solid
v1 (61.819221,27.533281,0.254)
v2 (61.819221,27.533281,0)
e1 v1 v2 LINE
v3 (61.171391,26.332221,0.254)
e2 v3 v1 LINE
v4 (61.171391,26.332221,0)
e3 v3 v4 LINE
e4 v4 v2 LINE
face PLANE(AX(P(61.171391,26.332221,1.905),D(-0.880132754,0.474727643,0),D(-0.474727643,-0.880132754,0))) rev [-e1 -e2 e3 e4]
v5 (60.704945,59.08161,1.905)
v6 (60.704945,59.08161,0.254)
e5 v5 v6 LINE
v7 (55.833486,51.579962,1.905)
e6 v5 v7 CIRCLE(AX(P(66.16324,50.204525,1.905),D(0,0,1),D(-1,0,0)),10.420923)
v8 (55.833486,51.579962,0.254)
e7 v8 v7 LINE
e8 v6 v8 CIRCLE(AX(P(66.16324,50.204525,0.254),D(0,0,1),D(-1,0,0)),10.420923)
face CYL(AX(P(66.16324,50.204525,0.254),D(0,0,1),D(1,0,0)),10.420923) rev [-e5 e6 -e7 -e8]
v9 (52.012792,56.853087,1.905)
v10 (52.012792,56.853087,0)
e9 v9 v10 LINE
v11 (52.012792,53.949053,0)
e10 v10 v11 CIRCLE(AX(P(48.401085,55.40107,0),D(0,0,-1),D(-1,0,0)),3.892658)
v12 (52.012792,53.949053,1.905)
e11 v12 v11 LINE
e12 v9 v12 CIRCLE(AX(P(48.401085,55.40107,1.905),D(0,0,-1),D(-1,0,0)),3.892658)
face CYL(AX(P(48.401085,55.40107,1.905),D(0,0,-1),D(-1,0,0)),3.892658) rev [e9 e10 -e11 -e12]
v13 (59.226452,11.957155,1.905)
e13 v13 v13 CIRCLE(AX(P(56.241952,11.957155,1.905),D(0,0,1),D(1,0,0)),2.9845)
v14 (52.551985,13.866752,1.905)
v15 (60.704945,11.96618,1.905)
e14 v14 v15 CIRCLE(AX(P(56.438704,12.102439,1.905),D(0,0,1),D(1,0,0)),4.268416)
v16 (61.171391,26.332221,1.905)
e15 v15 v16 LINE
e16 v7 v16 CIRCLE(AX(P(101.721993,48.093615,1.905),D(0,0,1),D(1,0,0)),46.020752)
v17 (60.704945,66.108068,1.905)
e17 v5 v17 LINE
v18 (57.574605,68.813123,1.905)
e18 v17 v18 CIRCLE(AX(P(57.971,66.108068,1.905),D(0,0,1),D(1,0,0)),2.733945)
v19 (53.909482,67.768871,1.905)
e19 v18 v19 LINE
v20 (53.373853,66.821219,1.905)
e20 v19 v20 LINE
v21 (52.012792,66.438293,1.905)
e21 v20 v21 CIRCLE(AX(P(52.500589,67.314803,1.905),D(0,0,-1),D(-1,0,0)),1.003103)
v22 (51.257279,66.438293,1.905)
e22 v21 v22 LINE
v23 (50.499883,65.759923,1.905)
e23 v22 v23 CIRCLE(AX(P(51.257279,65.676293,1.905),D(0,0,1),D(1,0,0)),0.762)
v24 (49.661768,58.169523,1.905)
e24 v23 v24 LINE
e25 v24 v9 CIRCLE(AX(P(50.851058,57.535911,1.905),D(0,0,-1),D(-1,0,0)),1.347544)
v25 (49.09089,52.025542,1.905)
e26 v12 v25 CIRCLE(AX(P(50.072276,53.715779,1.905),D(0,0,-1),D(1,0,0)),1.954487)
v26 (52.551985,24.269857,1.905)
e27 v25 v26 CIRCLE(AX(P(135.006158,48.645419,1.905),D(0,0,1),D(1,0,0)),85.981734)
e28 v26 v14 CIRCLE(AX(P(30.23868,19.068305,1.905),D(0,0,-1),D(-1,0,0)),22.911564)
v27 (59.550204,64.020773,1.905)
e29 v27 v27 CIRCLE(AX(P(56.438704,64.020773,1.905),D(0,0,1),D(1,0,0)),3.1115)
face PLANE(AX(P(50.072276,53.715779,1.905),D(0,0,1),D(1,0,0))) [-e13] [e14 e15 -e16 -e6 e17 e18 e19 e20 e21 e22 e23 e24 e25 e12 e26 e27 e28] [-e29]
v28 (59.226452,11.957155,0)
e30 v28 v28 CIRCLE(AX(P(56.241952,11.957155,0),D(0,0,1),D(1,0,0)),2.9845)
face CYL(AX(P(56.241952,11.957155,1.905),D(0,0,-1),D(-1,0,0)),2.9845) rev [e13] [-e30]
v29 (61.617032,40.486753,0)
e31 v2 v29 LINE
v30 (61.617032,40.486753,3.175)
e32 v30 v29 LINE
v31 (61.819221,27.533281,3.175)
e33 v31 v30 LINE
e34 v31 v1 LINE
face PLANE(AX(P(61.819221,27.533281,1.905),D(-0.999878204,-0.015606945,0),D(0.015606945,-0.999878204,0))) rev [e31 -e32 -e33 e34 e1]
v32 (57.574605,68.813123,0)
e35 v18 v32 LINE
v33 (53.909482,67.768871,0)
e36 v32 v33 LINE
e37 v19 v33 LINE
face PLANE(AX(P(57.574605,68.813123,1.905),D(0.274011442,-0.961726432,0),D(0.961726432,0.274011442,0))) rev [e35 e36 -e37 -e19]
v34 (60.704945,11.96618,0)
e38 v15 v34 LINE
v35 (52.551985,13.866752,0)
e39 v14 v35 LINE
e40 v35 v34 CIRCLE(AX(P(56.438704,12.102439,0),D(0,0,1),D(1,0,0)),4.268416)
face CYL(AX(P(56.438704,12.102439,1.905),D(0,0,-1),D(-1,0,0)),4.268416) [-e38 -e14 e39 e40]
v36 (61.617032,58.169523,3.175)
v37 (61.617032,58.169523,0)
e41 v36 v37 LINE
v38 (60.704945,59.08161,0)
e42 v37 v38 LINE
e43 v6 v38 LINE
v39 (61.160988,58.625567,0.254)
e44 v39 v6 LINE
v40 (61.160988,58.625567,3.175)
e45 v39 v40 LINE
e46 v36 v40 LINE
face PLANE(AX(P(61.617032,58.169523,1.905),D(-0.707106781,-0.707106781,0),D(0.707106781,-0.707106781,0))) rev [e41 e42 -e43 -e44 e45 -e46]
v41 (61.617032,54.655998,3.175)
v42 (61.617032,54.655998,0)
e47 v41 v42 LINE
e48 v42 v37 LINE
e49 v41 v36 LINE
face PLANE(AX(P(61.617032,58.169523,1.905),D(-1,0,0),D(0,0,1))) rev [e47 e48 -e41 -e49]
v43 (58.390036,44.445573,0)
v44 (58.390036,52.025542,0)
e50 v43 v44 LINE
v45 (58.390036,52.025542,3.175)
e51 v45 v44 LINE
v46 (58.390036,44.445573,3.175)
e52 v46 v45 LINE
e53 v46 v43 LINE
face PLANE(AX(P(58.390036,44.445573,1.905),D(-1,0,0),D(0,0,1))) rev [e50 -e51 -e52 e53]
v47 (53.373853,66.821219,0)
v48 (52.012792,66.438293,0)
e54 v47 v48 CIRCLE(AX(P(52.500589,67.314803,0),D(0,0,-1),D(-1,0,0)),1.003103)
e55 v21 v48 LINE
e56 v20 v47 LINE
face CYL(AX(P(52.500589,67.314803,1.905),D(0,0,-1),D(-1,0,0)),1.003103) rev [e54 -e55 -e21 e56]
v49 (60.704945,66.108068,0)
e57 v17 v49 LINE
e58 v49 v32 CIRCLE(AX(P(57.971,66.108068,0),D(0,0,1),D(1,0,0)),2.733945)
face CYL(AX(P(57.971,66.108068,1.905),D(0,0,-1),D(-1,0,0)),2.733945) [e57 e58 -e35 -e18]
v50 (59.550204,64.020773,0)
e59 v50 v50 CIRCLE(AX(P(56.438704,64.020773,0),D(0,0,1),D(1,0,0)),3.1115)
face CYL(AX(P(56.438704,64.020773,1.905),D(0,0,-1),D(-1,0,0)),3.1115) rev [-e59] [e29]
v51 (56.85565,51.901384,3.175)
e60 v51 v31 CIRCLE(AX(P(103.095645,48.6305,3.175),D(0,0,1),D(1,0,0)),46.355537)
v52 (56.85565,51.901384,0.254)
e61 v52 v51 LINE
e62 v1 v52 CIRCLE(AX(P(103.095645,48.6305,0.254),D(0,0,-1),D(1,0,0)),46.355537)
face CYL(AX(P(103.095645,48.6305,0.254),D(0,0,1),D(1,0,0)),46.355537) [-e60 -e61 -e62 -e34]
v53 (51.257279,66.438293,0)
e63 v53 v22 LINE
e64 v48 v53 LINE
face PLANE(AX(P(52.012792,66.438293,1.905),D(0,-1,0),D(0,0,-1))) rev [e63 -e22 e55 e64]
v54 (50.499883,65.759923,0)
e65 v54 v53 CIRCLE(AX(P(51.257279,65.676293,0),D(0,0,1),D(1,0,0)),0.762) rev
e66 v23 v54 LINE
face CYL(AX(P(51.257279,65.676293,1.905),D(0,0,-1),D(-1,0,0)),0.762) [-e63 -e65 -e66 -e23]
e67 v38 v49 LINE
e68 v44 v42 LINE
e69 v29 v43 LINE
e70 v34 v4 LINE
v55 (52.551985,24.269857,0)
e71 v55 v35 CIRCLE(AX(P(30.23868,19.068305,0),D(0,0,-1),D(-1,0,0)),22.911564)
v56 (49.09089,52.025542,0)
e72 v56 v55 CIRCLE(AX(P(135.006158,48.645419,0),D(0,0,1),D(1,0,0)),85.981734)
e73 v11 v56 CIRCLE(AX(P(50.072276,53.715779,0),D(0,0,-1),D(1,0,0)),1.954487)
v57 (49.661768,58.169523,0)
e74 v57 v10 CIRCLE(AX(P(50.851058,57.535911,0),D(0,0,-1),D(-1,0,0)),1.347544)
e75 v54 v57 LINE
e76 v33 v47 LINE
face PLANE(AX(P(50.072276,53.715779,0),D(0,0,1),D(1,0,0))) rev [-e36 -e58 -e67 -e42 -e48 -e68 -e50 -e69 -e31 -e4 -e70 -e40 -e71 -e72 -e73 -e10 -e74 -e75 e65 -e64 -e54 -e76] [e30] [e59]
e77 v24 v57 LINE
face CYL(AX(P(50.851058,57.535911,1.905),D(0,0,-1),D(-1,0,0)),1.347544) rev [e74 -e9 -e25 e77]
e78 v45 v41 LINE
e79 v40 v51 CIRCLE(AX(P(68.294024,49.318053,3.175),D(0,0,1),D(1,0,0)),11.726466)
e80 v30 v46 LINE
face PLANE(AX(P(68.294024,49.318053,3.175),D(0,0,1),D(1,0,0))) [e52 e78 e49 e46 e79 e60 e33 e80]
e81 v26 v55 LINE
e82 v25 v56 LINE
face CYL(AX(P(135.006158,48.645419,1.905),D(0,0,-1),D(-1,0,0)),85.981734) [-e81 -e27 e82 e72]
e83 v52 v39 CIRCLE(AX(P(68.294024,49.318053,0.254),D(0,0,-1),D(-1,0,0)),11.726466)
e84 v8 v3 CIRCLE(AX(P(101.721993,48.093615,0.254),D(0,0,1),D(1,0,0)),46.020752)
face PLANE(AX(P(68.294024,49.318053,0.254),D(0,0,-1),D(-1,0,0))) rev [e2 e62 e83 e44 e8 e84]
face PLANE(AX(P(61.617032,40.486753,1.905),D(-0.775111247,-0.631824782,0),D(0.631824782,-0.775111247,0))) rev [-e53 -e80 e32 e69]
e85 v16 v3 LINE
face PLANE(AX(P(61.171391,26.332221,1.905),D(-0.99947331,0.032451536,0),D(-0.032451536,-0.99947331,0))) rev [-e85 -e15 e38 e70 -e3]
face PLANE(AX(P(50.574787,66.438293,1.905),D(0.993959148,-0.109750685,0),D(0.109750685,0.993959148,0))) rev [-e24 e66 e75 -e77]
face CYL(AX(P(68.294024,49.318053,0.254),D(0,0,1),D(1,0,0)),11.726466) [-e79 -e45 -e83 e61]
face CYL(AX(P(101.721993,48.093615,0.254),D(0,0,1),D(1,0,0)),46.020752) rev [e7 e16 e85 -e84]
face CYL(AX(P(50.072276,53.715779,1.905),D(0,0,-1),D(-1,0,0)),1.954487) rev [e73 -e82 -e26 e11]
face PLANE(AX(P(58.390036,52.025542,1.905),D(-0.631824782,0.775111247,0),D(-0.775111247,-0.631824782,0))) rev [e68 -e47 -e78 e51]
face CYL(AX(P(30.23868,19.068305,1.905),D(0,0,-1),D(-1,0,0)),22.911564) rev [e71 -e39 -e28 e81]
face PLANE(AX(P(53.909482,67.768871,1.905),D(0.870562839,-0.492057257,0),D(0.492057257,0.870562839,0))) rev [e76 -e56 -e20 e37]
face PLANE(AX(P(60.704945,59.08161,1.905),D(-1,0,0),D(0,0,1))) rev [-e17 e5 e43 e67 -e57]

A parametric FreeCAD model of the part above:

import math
import FreeCAD as App
import Part
import Sketcher
Q = App.Units.Quantity


def edges_at(feature, points):
    """Names of the edges that pass closest to the given points."""
    edges = feature.Shape.Edges
    near = lambda p: min(range(len(edges)), key=lambda i: edges[i].distToShape(Part.Vertex(*p))[0])
    return sorted({f"Edge{near(p) + 1}" for p in points})

doc = App.newDocument("Part")
params = doc.addObject("Spreadsheet::Sheet", "Params")
for row, (alias, value) in enumerate([
    ("sketch1_diameter", "0.235 in"),
    ("sketch1_diameter2", "0.245 in"),
    ("pad1_length", "0.075 in"),
    ("pocket1_length", "0.065 in"),
    ("pad2_length", "0.05 in"),
    ("fillet_radius", "0.03 in"),
], start=1):
    params.set(f"A{row}", alias)
    params.set(f"B{row}", "=" + value)
    params.setAlias(f"B{row}", alias)

body = doc.addObject("PartDesign::Body", "Body")

sketch1 = doc.addObject("Sketcher::SketchObject", "Sketch")
body.addObject(sketch1)
sketch1.AttachmentSupport = (doc.XY_Plane, [""])
sketch1.MapMode = "FlatFace"
sketch1.addGeometry([
    Part.LineSegment(App.Vector(60.704945, 11.96618, 0), App.Vector(61.171391, 26.332221, 0)),
    Part.LineSegment(App.Vector(61.171391, 26.332221, 0), App.Vector(61.819221, 27.533281, 0)),
    Part.LineSegment(App.Vector(61.819221, 27.533281, 0), App.Vector(61.617032, 40.486753, 0)),
    Part.LineSegment(App.Vector(61.617032, 40.486753, 0), App.Vector(58.390036, 44.445573, 0)),
    Part.LineSegment(App.Vector(58.390036, 44.445573, 0), App.Vector(58.390036, 52.025542, 0)),
    Part.LineSegment(App.Vector(58.390036, 52.025542, 0), App.Vector(61.617032, 54.655998, 0)),
    Part.LineSegment(App.Vector(61.617032, 54.655998, 0), App.Vector(61.617032, 58.169523, 0)),
    Part.LineSegment(App.Vector(61.617032, 58.169523, 0), App.Vector(60.704945, 59.08161, 0)),
    Part.LineSegment(App.Vector(60.704945, 59.08161, 0), App.Vector(60.704945, 66.108068, 0)),
    Part.ArcOfCircle(Part.Circle(App.Vector(57.971, 66.108068, 0), App.Vector(0, 0, 1), 2.733945), math.radians(0), math.radians(98.336712)),
    Part.LineSegment(App.Vector(57.574605, 68.813123, 0), App.Vector(53.909482, 67.768871, 0)),
    Part.LineSegment(App.Vector(53.909482, 67.768871, 0), App.Vector(53.373853, 66.821219, 0)),
    Part.ArcOfCircle(Part.Circle(App.Vector(52.500589, 67.314803, 0), App.Vector(0, 0, 1), 1.003103), math.radians(-119.096889), math.radians(-29.475889)),
    Part.LineSegment(App.Vector(52.012792, 66.438293, 0), App.Vector(50.574787, 66.438293, 0)),
    Part.LineSegment(App.Vector(50.574787, 66.438293, 0), App.Vector(49.661768, 58.169523, 0)),
    Part.ArcOfCircle(Part.Circle(App.Vector(50.851058, 57.535911, 0), App.Vector(0, 0, 1), 1.347544), math.radians(-30.445409), math.radians(151.952863)),
    Part.ArcOfCircle(Part.Circle(App.Vector(48.401085, 55.40107, 0), App.Vector(0, 0, 1), 3.892658), math.radians(-21.901636), math.radians(21.901636)),
    Part.ArcOfCircle(Part.Circle(App.Vector(50.072276, 53.715779, 0), App.Vector(0, 0, 1), 1.954487), math.radians(-120.140344), math.radians(6.854784)),
    Part.ArcOfCircle(Part.Circle(App.Vector(135.006158, 48.645419, 0), App.Vector(0, 0, 1), 85.981734), math.radians(177.747001), math.radians(196.469027)),
    Part.ArcOfCircle(Part.Circle(App.Vector(30.23868, 19.068305, 0), App.Vector(0, 0, 1), 22.911564), math.radians(-13.122125), math.radians(13.122125)),
    Part.ArcOfCircle(Part.Circle(App.Vector(56.438704, 12.102439, 0), App.Vector(0, 0, 1), 4.268416), math.radians(155.585099), math.radians(358.170652)),
    Part.Circle(App.Vector(56.241952, 11.957155, 0), App.Vector(0, 0, 1), 2.9845),
    Part.Circle(App.Vector(56.438704, 64.020773, 0), App.Vector(0, 0, 1), 3.1115),
], False)
sketch1.addConstraint([
    Sketcher.Constraint("Coincident", 0, 2, 1, 1),
    Sketcher.Constraint("Coincident", 1, 2, 2, 1),
    Sketcher.Constraint("Coincident", 2, 2, 3, 1),
    Sketcher.Constraint("Coincident", 3, 2, 4, 1),
    Sketcher.Constraint("Coincident", 4, 2, 5, 1),
    Sketcher.Constraint("Coincident", 5, 2, 6, 1),
    Sketcher.Constraint("Coincident", 6, 2, 7, 1),
    Sketcher.Constraint("Coincident", 7, 2, 8, 1),
    Sketcher.Constraint("Tangent", 8, 2, 9, 1),
    Sketcher.Constraint("Coincident", 9, 2, 10, 1),
    Sketcher.Constraint("Coincident", 10, 2, 11, 1),
    Sketcher.Constraint("Tangent", 11, 2, 12, 2),
    Sketcher.Constraint("Coincident", 12, 1, 13, 1),
    Sketcher.Constraint("Coincident", 13, 2, 14, 1),
    Sketcher.Constraint("Coincident", 14, 2, 15, 2),
    Sketcher.Constraint("Coincident", 15, 1, 16, 2),
    Sketcher.Constraint("Coincident", 16, 1, 17, 2),
    Sketcher.Constraint("Coincident", 17, 1, 18, 1),
    Sketcher.Constraint("Coincident", 18, 2, 19, 2),
    Sketcher.Constraint("Coincident", 19, 1, 20, 1),
    Sketcher.Constraint("Coincident", 20, 2, 0, 1),
    Sketcher.Constraint("Vertical", 4),
    Sketcher.Constraint("Vertical", 6),
    Sketcher.Constraint("Vertical", 8),
    Sketcher.Constraint("Horizontal", 13),
    Sketcher.Constraint("Perpendicular", 3, 5),
    Sketcher.Constraint("Horizontal", 6, 2, 14, 2),
    Sketcher.Constraint("Horizontal", 4, 2, 17, 1),
    Sketcher.Constraint("Vertical", 20, 3, 22, 3),
    Sketcher.Constraint("Vertical", 2, 2, 5, 2),
    Sketcher.Constraint("Vertical", 12, 1, 15, 1),
    Sketcher.Constraint("Vertical", 15, 1, 16, 1),
    Sketcher.Constraint("Vertical", 18, 2, 19, 1),
    Sketcher.Constraint("Vertical", 8, 2, 20, 2),
    Sketcher.Constraint("Diameter", 21, Q("0.235 in")),
    Sketcher.Constraint("Diameter", 22, Q("0.245 in")),
    Sketcher.Constraint("Angle", 7, Q("135 deg")),
    Sketcher.Constraint("Radius", 9, Q("2.733945 mm")),
    Sketcher.Constraint("Radius", 12, Q("1.003103 mm")),
    Sketcher.Constraint("Radius", 15, Q("1.347544 mm")),
    Sketcher.Constraint("Radius", 16, Q("3.892658 mm")),
    Sketcher.Constraint("Radius", 17, Q("1.954487 mm")),
    Sketcher.Constraint("Radius", 18, Q("85.981734 mm")),
    Sketcher.Constraint("Radius", 19, Q("22.911564 mm")),
    Sketcher.Constraint("Radius", 20, Q("4.268416 mm")),
    Sketcher.Constraint("DistanceY", 4, 1, 4, 2, Q("7.579969 mm")),
    Sketcher.Constraint("DistanceX", -1, 1, 9, 3, Q("57.971 mm")),
    Sketcher.Constraint("DistanceX", 15, 3, 18, 3, Q("84.1551 mm")),
    Sketcher.Constraint("DistanceY", 19, 3, 12, 3, Q("48.246499 mm")),
    Sketcher.Constraint("DistanceX", 22, 3, 9, 2, Q("1.135901 mm")),
    Sketcher.Constraint("Distance", 0, Q("14.373611 mm")),
    Sketcher.Constraint("Distance", 2, Q("12.95505 mm")),
    Sketcher.Constraint("Distance", 3, Q("5.107422 mm")),
    Sketcher.Constraint("Distance", 11, Q("1.08855 mm")),
    Sketcher.Constraint("DistanceX", 13, 2, 13, 1, Q("1.438006 mm")),
    Sketcher.Constraint("DistanceY", 6, 1, 6, 2, Q("3.513525 mm")),
    Sketcher.Constraint("DistanceY", 8, 1, 8, 2, Q("7.026458 mm")),
    Sketcher.Constraint("DistanceX", -1, 1, 12, 3, Q("52.500589 mm")),
    Sketcher.Constraint("DistanceY", -1, 1, 15, 3, Q("57.535911 mm")),
    Sketcher.Constraint("DistanceY", -1, 1, 16, 3, Q("55.40107 mm")),
    Sketcher.Constraint("DistanceY", -1, 1, 17, 3, Q("53.715779 mm")),
    Sketcher.Constraint("DistanceY", -1, 1, 18, 3, Q("48.645419 mm")),
    Sketcher.Constraint("DistanceX", -1, 1, 19, 3, Q("30.23868 mm")),
    Sketcher.Constraint("DistanceY", -1, 1, 20, 3, Q("12.102439 mm")),
    Sketcher.Constraint("DistanceX", -1, 1, 21, 3, Q("56.241952 mm")),
    Sketcher.Constraint("DistanceX", -1, 1, 0, 2, Q("61.171391 mm")),
    Sketcher.Constraint("DistanceY", -1, 1, 0, 2, Q("26.332221 mm")),
    Sketcher.Constraint("DistanceX", -1, 1, 1, 2, Q("61.819221 mm")),
    Sketcher.Constraint("DistanceY", -1, 1, 1, 2, Q("27.533281 mm")),
    Sketcher.Constraint("DistanceX", -1, 1, 2, 2, Q("61.617032 mm")),
    Sketcher.Constraint("DistanceY", -1, 1, 7, 2, Q("59.08161 mm")),
    Sketcher.Constraint("DistanceY", -1, 1, 10, 2, Q("67.768871 mm")),
    Sketcher.Constraint("DistanceY", -1, 1, 11, 2, Q("66.821219 mm")),
    Sketcher.Constraint("DistanceY", 21, 3, 19, 3, Q("7.11115 mm")),
    Sketcher.Constraint("DistanceY", 22, 3, 12, 3, Q("3.29403 mm")),
])
sketch1.setExpression("Constraints[34]", "Params.sketch1_diameter")
sketch1.setExpression("Constraints[35]", "Params.sketch1_diameter2")
pad1 = doc.addObject("PartDesign::Pad", "Pad")
body.addObject(pad1)
pad1.Profile = sketch1
pad1.setExpression("Length", "Params.pad1_length")

sketch2 = doc.addObject("Sketcher::SketchObject", "Sketch001")
body.addObject(sketch2)
sketch2.AttachmentSupport = (doc.XY_Plane, [""])
sketch2.MapMode = "FlatFace"
sketch2.AttachmentOffset = App.Placement(App.Vector(0, 0, 0.075 * 25.4), App.Rotation())
sketch2.addGeometry([
    Part.LineSegment(App.Vector(61.160988, 58.625567, 0), App.Vector(60.704945, 59.08161, 0)),
    Part.ArcOfCircle(Part.Circle(App.Vector(66.16324, 50.204525, 0), App.Vector(0, 0, 1), 10.420923), math.radians(121.586305), math.radians(172.415513)),
    Part.ArcOfCircle(Part.Circle(App.Vector(101.721993, 48.093615, 0), App.Vector(0, 0, 1), 46.020752), math.radians(175.655341), math.radians(208.220137)),
    Part.LineSegment(App.Vector(61.171391, 26.332221, 0), App.Vector(61.819221, 27.533281, 0)),
    Part.ArcOfCircle(Part.Circle(App.Vector(103.095645, 48.6305, 0), App.Vector(0, 0, 1), 46.355537), math.radians(175.953801), math.radians(207.072498)),
    Part.ArcOfCircle(Part.Circle(App.Vector(68.294024, 49.318053, 0), App.Vector(0, 0, 1), 11.726466), math.radians(127.465616), math.radians(167.273395)),
], False)
sketch2.addConstraint([
    Sketcher.Constraint("Coincident", 0, 2, 1, 1),
    Sketcher.Constraint("Coincident", 1, 2, 2, 1),
    Sketcher.Constraint("Coincident", 2, 2, 3, 1),
    Sketcher.Constraint("Coincident", 3, 2, 4, 2),
    Sketcher.Constraint("Coincident", 4, 1, 5, 2),
    Sketcher.Constraint("Coincident", 5, 1, 0, 1),
    Sketcher.Constraint("Angle", 0, Q("135 deg")),
    Sketcher.Constraint("Radius", 1, Q("10.420923 mm")),
    Sketcher.Constraint("Radius", 2, Q("46.020752 mm")),
    Sketcher.Constraint("Radius", 4, Q("46.355537 mm")),
    Sketcher.Constraint("Radius", 5, Q("11.726466 mm")),
    Sketcher.Constraint("DistanceY", -1, 1, 4, 3, Q("48.6305 mm")),
    Sketcher.Constraint("DistanceX", 0, 2, 4, 3, Q("42.3907 mm")),
    Sketcher.Constraint("DistanceX", 1, 2, 5, 1, Q("5.327502 mm")),
    Sketcher.Constraint("DistanceX", -1, 1, 1, 3, Q("66.16324 mm")),
    Sketcher.Constraint("DistanceY", -1, 1, 0, 2, Q("59.08161 mm")),
    Sketcher.Constraint("DistanceY", -1, 1, 1, 2, Q("51.579962 mm")),
    Sketcher.Constraint("DistanceX", -1, 1, 2, 2, Q("61.171391 mm")),
    Sketcher.Constraint("DistanceY", -1, 1, 2, 2, Q("26.332221 mm")),
    Sketcher.Constraint("DistanceX", -1, 1, 3, 2, Q("61.819221 mm")),
    Sketcher.Constraint("DistanceY", -1, 1, 3, 2, Q("27.533281 mm")),
    Sketcher.Constraint("DistanceX", -1, 1, 4, 1, Q("56.85565 mm")),
])
pocket1 = doc.addObject("PartDesign::Pocket", "Pocket")
body.addObject(pocket1)
pocket1.Profile = sketch2
pocket1.setExpression("Length", "Params.pocket1_length")

sketch3 = doc.addObject("Sketcher::SketchObject", "Sketch002")
body.addObject(sketch3)
sketch3.AttachmentSupport = (doc.XY_Plane, [""])
sketch3.MapMode = "FlatFace"
sketch3.AttachmentOffset = App.Placement(App.Vector(0, 0, 0.075 * 25.4), App.Rotation())
sketch3.addGeometry([
    Part.LineSegment(App.Vector(61.819221, 27.533281, 0), App.Vector(61.617032, 40.486753, 0)),
    Part.LineSegment(App.Vector(61.617032, 40.486753, 0), App.Vector(58.390036, 44.445573, 0)),
    Part.LineSegment(App.Vector(58.390036, 44.445573, 0), App.Vector(58.390036, 52.025542, 0)),
    Part.LineSegment(App.Vector(58.390036, 52.025542, 0), App.Vector(61.617032, 54.655998, 0)),
    Part.LineSegment(App.Vector(61.617032, 54.655998, 0), App.Vector(61.617032, 58.169523, 0)),
    Part.LineSegment(App.Vector(61.617032, 58.169523, 0), App.Vector(61.160988, 58.625567, 0)),
    Part.ArcOfCircle(Part.Circle(App.Vector(68.294024, 49.318053, 0), App.Vector(0, 0, 1), 11.726466), math.radians(127.465616), math.radians(167.273395)),
    Part.ArcOfCircle(Part.Circle(App.Vector(103.095645, 48.6305, 0), App.Vector(0, 0, 1), 46.355537), math.radians(175.953801), math.radians(207.072498)),
], False)
sketch3.addConstraint([
    Sketcher.Constraint("Coincident", 0, 2, 1, 1),
    Sketcher.Constraint("Coincident", 1, 2, 2, 1),
    Sketcher.Constraint("Coincident", 2, 2, 3, 1),
    Sketcher.Constraint("Coincident", 3, 2, 4, 1),
    Sketcher.Constraint("Coincident", 4, 2, 5, 1),
    Sketcher.Constraint("Coincident", 5, 2, 6, 1),
    Sketcher.Constraint("Coincident", 6, 2, 7, 1),
    Sketcher.Constraint("Coincident", 7, 2, 0, 1),
    Sketcher.Constraint("Vertical", 2),
    Sketcher.Constraint("Vertical", 4),
    Sketcher.Constraint("Perpendicular", 1, 3),
    Sketcher.Constraint("Vertical", 0, 2, 3, 2),
    Sketcher.Constraint("Angle", 5, Q("135 deg")),
    Sketcher.Constraint("Radius", 6, Q("11.726466 mm")),
    Sketcher.Constraint("Radius", 7, Q("46.355537 mm")),
    Sketcher.Constraint("DistanceY", 2, 1, 2, 2, Q("7.579969 mm")),
    Sketcher.Constraint("DistanceY", -1, 1, 7, 3, Q("48.6305 mm")),
    Sketcher.Constraint("DistanceY", 0, 2, 6, 3, Q("8.8313 mm")),
    Sketcher.Constraint("DistanceY", 7, 3, 3, 2, Q("6.025498 mm")),
    Sketcher.Constraint("Distance", 0, Q("12.95505 mm")),
    Sketcher.Constraint("Distance", 1, Q("5.107422 mm")),
    Sketcher.Constraint("DistanceY", 4, 1, 4, 2, Q("3.513525 mm")),
    Sketcher.Constraint("DistanceX", -1, 1, 0, 2, Q("61.617032 mm")),
    Sketcher.Constraint("DistanceX", -1, 1, 5, 2, Q("61.160988 mm")),
    Sketcher.Constraint("DistanceX", -1, 1, 6, 2, Q("56.85565 mm")),
    Sketcher.Constraint("DistanceY", -1, 1, 7, 2, Q("27.533281 mm")),
])
pad2 = doc.addObject("PartDesign::Pad", "Pad001")
body.addObject(pad2)
pad2.Profile = sketch3
pad2.setExpression("Length", "Params.pad2_length")
doc.recompute()

fillet = doc.addObject("PartDesign::Fillet", "Fillet")
body.addObject(fillet)
fillet.Base = (pad2, edges_at(pad2, [(50.575, 66.438, 0.953)]))
fillet.setExpression("Radius", "Params.fillet_radius")

doc.recompute()
